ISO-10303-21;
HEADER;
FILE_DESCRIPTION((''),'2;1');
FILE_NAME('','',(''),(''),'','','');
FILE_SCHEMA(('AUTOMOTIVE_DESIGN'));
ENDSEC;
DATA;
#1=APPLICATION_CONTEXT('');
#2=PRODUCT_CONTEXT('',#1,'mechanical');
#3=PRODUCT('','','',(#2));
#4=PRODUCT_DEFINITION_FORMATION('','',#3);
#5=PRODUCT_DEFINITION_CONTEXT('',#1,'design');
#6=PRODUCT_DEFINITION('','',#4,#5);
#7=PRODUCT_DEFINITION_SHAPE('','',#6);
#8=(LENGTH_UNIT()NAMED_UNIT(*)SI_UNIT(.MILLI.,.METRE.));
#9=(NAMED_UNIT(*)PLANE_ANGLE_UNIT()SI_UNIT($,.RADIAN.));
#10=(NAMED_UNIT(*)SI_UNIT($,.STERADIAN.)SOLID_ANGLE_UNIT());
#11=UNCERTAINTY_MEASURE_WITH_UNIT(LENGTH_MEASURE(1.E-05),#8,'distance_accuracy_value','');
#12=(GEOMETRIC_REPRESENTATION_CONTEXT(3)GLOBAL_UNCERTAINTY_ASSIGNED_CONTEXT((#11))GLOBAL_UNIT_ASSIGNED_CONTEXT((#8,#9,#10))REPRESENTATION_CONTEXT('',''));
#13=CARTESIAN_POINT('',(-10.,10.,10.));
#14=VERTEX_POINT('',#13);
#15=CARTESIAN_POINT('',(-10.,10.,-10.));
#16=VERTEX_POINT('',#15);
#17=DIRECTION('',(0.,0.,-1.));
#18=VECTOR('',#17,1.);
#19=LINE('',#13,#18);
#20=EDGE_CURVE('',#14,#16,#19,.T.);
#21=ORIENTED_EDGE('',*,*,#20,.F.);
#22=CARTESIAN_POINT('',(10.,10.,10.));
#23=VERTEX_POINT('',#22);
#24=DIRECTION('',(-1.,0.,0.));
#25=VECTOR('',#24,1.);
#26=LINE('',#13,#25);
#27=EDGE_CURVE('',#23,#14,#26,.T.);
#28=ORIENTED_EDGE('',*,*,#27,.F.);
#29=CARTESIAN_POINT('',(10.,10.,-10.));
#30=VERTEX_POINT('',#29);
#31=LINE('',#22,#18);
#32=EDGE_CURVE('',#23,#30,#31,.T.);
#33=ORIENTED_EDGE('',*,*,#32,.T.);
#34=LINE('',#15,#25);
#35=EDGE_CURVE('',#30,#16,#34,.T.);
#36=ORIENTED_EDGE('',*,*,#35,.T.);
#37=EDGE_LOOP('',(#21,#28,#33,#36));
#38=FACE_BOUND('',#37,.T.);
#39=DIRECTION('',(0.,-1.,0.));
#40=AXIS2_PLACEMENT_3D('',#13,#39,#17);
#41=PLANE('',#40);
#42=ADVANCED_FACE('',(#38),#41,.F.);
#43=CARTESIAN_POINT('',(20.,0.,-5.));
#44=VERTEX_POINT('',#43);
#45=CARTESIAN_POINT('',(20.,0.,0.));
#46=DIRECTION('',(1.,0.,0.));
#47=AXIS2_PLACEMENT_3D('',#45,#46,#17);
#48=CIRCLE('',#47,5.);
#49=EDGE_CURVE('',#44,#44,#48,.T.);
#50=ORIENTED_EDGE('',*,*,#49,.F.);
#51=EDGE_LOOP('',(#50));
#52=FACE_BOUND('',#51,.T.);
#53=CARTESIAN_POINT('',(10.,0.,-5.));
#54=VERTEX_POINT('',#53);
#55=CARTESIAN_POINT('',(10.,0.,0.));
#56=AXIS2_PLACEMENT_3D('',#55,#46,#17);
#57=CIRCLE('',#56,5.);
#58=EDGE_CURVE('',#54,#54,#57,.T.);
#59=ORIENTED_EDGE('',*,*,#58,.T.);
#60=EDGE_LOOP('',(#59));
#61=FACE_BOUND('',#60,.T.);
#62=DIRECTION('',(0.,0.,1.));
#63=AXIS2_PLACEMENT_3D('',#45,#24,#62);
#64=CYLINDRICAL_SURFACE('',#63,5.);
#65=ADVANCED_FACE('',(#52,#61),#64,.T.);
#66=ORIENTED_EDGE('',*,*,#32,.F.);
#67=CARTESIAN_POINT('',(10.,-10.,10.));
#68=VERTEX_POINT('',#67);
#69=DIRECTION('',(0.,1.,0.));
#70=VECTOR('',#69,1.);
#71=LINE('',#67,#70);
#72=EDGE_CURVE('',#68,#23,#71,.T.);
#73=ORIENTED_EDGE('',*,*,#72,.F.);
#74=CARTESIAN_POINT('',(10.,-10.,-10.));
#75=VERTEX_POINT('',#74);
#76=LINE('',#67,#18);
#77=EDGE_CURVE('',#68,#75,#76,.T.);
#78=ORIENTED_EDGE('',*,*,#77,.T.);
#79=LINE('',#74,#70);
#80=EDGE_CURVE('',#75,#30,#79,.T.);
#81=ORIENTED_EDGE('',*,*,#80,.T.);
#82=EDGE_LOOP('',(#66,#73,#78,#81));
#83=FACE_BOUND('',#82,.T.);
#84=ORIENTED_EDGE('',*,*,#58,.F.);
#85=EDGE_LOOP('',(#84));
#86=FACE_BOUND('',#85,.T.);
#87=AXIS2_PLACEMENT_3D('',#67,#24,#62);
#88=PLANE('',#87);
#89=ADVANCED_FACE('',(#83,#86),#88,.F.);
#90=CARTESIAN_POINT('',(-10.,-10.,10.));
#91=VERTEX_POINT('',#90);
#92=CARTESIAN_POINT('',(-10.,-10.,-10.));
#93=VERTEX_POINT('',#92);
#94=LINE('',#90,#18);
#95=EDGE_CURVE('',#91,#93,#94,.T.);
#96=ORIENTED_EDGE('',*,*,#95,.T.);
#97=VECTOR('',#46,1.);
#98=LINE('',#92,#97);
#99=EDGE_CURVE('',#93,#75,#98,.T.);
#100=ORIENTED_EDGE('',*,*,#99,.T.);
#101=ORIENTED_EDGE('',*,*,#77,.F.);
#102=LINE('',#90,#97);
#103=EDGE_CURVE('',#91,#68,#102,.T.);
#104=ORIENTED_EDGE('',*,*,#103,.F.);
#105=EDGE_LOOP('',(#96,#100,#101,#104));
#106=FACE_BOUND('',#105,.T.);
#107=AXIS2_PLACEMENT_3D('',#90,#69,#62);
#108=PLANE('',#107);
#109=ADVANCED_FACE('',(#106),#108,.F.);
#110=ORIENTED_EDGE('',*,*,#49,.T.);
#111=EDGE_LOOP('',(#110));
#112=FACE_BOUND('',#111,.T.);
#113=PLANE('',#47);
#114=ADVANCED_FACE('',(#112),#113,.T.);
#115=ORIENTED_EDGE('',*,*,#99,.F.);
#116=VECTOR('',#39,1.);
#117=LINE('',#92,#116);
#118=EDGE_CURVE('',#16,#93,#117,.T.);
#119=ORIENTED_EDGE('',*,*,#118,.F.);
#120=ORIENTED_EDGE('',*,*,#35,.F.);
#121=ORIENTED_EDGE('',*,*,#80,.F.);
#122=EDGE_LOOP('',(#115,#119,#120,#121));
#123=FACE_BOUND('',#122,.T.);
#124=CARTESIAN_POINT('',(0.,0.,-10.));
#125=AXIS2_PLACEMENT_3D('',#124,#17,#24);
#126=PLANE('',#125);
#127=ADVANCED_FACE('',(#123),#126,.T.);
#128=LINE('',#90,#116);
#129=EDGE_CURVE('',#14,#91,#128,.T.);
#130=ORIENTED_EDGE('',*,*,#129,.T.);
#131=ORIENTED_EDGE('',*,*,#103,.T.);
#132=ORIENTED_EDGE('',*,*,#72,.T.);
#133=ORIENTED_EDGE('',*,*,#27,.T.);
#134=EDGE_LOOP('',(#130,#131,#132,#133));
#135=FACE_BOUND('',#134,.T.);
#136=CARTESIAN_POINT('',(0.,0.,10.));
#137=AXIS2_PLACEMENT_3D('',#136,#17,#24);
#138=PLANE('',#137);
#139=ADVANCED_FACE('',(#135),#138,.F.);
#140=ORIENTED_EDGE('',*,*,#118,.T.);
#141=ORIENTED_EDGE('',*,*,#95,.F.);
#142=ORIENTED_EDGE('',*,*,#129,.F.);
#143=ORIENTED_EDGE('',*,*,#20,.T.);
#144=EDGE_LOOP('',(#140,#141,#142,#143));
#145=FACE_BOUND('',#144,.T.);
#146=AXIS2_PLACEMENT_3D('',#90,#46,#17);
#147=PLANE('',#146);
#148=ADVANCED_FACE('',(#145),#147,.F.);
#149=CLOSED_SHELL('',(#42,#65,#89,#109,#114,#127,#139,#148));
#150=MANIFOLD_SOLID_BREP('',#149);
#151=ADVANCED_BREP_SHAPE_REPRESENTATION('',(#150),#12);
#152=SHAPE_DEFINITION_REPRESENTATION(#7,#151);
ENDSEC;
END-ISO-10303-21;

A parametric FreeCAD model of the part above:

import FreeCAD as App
import Part
import Sketcher
Q = App.Units.Quantity


def add_polygon(sketch, points):
    """Adds a closed chain of lines whose ends are joined by coincident constraints."""
    first, n = sketch.GeometryCount, len(points)
    for a, b in zip(points, points[1:] + points[:1]):
        sketch.addGeometry(Part.LineSegment(App.Vector(*a, 0), App.Vector(*b, 0)), False)
    for i in range(n):
        sketch.addConstraint(Sketcher.Constraint("Coincident", first + i, 2, first + (i + 1) % n, 1))

doc = App.newDocument("Part")
body = doc.addObject("PartDesign::Body", "Body")

sketch1 = body.newObject("Sketcher::SketchObject", "Sketch")
sketch1.AttachmentSupport = (doc.getObject("XY_Plane"), [""])
sketch1.MapMode = "FlatFace"
add_polygon(sketch1, [(-10, 10), (-10, -10), (10, -10), (10, 10)])
sketch1.addConstraint([
    Sketcher.Constraint("Vertical", 0),
    Sketcher.Constraint("Horizontal", 1),
    Sketcher.Constraint("Vertical", 2),
    Sketcher.Constraint("Horizontal", 3),
    Sketcher.Constraint("Symmetric", 0, 2, 2, 2, -1, 1),
    Sketcher.Constraint("Equal", 3, 0),
    Sketcher.Constraint("DistanceX", 1, 1, 1, 2, Q("20 mm")),
])
pad1 = body.newObject("PartDesign::Pad", "Pad")
pad1.Profile = sketch1
pad1.Length = 20
pad1.Midplane = True

sketch2 = body.newObject("Sketcher::SketchObject", "Sketch001")
sketch2.AttachmentSupport = (doc.getObject("YZ_Plane"), [""])
sketch2.MapMode = "FlatFace"
sketch2.AttachmentOffset = App.Placement(App.Vector(0, 0, 10), App.Rotation())
sketch2.addGeometry(Part.Circle(App.Vector(0, 0, 0), App.Vector(0, 0, 1), 5), False)
sketch2.addConstraint([
    Sketcher.Constraint("Coincident", 0, 3, -1, 1),
    Sketcher.Constraint("Diameter", 0, Q("10 mm")),
])
pad2 = body.newObject("PartDesign::Pad", "Pad001")
pad2.Profile = sketch2
pad2.Length = 10

doc.recompute()
